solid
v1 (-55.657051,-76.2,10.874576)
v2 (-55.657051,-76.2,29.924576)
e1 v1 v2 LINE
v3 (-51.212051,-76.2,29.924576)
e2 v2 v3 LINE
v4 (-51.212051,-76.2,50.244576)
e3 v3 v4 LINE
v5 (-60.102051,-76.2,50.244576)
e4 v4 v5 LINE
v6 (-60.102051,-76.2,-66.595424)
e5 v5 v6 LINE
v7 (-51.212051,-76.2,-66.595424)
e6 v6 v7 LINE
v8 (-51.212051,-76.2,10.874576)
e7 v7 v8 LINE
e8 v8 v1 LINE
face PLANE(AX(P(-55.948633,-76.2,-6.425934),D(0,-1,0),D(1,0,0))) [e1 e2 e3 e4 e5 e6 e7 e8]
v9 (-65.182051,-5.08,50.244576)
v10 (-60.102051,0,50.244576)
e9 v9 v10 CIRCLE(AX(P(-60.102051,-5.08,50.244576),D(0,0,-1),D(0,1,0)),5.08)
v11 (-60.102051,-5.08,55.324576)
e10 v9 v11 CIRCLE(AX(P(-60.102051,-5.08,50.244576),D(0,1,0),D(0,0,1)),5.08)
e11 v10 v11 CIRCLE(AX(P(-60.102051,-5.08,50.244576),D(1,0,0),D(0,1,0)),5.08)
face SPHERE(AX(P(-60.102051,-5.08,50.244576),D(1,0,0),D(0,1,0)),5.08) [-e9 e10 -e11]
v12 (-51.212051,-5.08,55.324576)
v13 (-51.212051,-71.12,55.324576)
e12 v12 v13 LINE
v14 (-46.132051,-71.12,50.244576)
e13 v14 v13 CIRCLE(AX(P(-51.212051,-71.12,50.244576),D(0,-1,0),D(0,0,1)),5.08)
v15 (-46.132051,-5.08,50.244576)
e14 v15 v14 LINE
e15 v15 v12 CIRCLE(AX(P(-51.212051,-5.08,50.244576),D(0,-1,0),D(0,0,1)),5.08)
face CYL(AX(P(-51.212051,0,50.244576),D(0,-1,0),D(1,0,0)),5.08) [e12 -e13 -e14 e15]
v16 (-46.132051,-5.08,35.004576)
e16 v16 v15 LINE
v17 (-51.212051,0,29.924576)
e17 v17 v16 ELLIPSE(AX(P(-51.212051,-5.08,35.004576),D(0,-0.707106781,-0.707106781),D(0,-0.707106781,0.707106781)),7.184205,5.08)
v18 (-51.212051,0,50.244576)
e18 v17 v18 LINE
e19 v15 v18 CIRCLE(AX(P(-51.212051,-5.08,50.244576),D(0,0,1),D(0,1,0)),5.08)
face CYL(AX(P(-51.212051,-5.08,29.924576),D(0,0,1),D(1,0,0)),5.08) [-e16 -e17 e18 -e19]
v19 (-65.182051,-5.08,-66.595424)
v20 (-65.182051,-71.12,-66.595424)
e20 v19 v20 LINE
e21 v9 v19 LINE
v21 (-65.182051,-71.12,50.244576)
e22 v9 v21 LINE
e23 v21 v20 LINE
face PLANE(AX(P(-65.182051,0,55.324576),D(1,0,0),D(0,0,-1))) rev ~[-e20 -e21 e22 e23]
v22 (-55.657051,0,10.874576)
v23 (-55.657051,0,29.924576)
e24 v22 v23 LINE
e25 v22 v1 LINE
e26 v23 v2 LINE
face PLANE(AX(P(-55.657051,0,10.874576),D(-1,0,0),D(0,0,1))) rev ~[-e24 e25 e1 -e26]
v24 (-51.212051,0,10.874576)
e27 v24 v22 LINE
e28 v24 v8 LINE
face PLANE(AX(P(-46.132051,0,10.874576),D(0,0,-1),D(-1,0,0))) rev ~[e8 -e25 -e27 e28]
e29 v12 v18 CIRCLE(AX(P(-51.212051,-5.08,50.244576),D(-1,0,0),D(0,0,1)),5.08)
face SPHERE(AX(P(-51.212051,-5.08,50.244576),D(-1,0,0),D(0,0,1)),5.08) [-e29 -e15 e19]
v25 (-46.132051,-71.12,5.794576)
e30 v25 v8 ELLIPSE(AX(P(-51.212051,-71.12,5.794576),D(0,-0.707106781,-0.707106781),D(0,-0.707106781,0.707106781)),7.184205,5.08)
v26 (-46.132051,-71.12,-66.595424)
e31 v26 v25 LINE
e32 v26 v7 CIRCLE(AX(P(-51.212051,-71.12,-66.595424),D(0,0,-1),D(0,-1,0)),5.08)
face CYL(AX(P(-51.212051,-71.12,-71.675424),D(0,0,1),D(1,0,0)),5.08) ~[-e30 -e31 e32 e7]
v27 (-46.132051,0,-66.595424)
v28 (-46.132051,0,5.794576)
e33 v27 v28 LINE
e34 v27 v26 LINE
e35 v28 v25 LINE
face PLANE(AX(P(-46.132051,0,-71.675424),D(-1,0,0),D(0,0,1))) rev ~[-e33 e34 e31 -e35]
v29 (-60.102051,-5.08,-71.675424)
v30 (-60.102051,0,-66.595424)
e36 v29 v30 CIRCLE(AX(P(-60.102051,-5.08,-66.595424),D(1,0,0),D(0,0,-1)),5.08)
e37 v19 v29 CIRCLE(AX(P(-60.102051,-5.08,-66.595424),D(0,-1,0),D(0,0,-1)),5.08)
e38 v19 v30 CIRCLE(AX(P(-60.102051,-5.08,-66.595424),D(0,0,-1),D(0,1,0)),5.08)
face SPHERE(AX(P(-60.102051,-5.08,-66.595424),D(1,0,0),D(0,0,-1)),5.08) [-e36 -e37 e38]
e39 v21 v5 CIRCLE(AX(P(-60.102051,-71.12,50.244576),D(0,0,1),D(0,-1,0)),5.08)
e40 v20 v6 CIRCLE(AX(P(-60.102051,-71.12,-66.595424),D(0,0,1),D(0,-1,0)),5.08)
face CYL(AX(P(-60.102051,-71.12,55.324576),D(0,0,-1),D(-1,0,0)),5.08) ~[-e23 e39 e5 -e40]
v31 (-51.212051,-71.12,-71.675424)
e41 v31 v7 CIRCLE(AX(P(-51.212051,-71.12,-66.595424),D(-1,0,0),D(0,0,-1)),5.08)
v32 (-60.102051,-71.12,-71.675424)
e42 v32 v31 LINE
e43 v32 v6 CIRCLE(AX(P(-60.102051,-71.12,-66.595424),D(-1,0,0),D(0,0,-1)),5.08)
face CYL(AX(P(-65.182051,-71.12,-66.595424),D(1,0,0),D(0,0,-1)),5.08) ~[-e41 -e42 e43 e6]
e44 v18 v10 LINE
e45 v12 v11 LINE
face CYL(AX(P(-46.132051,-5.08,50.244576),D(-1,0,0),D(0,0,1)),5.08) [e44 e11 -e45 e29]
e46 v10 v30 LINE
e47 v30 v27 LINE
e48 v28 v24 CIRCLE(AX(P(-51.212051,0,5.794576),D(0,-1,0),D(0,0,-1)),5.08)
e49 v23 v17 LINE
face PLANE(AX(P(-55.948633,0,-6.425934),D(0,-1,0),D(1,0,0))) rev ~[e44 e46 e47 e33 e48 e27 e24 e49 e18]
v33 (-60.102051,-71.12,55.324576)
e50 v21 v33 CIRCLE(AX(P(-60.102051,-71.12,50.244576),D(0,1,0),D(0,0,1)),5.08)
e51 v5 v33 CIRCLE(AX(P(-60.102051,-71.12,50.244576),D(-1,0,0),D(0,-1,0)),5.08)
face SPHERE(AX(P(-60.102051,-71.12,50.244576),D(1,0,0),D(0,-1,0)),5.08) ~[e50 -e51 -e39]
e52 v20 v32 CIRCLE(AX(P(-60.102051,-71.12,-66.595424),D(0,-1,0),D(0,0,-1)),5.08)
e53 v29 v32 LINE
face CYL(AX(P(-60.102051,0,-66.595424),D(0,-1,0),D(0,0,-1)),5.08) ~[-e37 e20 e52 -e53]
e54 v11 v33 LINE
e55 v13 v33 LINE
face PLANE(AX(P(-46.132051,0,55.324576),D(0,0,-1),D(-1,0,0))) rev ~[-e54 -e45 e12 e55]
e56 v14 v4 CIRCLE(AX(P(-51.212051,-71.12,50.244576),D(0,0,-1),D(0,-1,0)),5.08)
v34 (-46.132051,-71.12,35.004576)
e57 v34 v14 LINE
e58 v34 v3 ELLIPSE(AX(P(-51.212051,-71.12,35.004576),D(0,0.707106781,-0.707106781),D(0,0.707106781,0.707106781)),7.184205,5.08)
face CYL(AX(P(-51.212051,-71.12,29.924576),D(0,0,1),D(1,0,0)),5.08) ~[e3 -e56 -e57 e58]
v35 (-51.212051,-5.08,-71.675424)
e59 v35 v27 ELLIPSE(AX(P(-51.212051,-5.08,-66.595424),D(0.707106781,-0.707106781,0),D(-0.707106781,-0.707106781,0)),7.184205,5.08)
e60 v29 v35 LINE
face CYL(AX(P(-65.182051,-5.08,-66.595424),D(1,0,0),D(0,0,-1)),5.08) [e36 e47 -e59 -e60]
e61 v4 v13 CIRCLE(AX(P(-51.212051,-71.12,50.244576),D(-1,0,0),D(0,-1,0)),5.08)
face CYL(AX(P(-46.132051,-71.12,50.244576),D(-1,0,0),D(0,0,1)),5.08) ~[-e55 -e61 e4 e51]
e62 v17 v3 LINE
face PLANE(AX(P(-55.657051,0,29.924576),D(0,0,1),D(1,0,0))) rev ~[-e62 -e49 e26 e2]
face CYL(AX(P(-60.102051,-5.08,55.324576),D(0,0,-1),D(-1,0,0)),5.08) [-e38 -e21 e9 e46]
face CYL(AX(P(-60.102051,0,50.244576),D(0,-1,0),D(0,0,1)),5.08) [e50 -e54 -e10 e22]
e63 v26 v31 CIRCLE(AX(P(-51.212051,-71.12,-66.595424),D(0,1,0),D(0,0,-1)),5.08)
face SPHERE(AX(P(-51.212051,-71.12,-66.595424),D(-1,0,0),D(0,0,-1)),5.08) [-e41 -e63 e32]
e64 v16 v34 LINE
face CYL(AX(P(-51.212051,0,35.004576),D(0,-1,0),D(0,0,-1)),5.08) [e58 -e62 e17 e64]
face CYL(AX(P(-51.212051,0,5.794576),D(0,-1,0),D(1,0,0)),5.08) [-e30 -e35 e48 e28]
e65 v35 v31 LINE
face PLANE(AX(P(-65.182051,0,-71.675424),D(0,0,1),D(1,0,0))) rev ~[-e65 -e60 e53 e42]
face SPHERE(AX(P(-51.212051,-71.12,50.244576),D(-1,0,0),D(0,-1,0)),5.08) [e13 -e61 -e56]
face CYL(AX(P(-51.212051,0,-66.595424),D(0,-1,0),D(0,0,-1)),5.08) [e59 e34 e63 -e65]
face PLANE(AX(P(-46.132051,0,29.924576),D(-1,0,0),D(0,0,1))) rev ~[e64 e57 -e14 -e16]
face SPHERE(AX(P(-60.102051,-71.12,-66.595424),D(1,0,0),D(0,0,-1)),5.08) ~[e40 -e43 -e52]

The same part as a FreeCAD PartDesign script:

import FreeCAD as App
import Part
import Sketcher

V = App.Vector
Q = App.Units.Quantity


def edges_at(feature, points):
    """Names of the edges that pass closest to the given points."""
    edges = feature.Shape.Edges
    near = lambda p: min(range(len(edges)), key=lambda i: edges[i].distToShape(Part.Vertex(*p))[0])
    return sorted({f"Edge{near(p) + 1}" for p in points})

doc = App.newDocument("Part")
body = doc.addObject("PartDesign::Body", "Body")

# Sketch on XZ plane
sketch1 = body.newObject("Sketcher::SketchObject", "Sketch")
sketch1.AttachmentSupport = (doc.getObject("XZ_Plane"), [""])
sketch1.MapMode = "FlatFace"
sketch1.addGeometry([
    Part.LineSegment(V(-65, -72, 0), V(-46, -72, 0)),  # 0
    Part.LineSegment(V(-46, -72, 0), V(-46, 11, 0)),  # 1
    Part.LineSegment(V(-46, 11, 0), V(-56, 11, 0)),  # 2
    Part.LineSegment(V(-56, 11, 0), V(-56, 30, 0)),  # 3
    Part.LineSegment(V(-56, 30, 0), V(-46, 30, 0)),  # 4
    Part.LineSegment(V(-46, 30, 0), V(-46, 55, 0)),  # 5
    Part.LineSegment(V(-46, 55, 0), V(-65, 55, 0)),  # 6
    Part.LineSegment(V(-65, 55, 0), V(-65, -72, 0)),  # 7
], False)
sketch1.addConstraint([
    Sketcher.Constraint("Coincident", 0, 2, 1, 1),
    Sketcher.Constraint("Coincident", 1, 2, 2, 1),
    Sketcher.Constraint("Coincident", 2, 2, 3, 1),
    Sketcher.Constraint("Coincident", 3, 2, 4, 1),
    Sketcher.Constraint("Coincident", 4, 2, 5, 1),
    Sketcher.Constraint("Coincident", 5, 2, 6, 1),
    Sketcher.Constraint("Coincident", 6, 2, 7, 1),
    Sketcher.Constraint("Coincident", 7, 2, 0, 1),
    Sketcher.Constraint("Horizontal", 0),
    Sketcher.Constraint("Vertical", 1),
    Sketcher.Constraint("Horizontal", 2),
    Sketcher.Constraint("Vertical", 3),
    Sketcher.Constraint("Horizontal", 4),
    Sketcher.Constraint("Vertical", 5),
    Sketcher.Constraint("Horizontal", 6),
    Sketcher.Constraint("Vertical", 7),
    Sketcher.Constraint("Vertical", 1, 2, 4, 2),
    Sketcher.Constraint("Equal", 6, 3),
    Sketcher.Constraint("DistanceY", 5, 1, 5, 2, Q("1 in")),
    Sketcher.Constraint("DistanceY", 7, 2, 7, 1, Q("5 in")),
    Sketcher.Constraint("DistanceX", 0, 1, 0, 2, Q("0.75 in")),
    Sketcher.Constraint("DistanceX", 2, 2, 2, 1, Q("0.375 in")),
    Sketcher.Constraint("DistanceX", 0, 2, -1, 1, Q("46.132051 mm")),
    Sketcher.Constraint("DistanceY", 0, 2, -1, 1, Q("71.675424 mm")),
])
pad1 = body.newObject("PartDesign::Pad", "Pad")
pad1.Profile = sketch1
pad1.Length = Q("3 in")
doc.recompute()

fillet = body.newObject("PartDesign::Fillet", "Fillet")
fillet.Base = (pad1, edges_at(pad1, [
    (-55.657, -76.2, 55.325),
    (-55.657, 0, 55.325),
    (-55.657, -76.2, -71.675),
    (-46.132, -38.1, -71.675),
    (-55.657, 0, -71.675),
    (-65.182, -38.1, -71.675),
    (-46.132, -76.2, -30.4),
    (-65.182, -76.2, -8.175),
    (-46.132, -76.2, 42.625),
    (-46.132, -38.1, 29.925),
    (-46.132, -38.1, 10.875),
    (-46.132, -38.1, 55.325),
    (-46.132, 0, 42.625),
    (-65.182, 0, -8.175),
    (-65.182, -38.1, 55.325),
]))
fillet.Radius = Q("0.2 in")

doc.recompute()
